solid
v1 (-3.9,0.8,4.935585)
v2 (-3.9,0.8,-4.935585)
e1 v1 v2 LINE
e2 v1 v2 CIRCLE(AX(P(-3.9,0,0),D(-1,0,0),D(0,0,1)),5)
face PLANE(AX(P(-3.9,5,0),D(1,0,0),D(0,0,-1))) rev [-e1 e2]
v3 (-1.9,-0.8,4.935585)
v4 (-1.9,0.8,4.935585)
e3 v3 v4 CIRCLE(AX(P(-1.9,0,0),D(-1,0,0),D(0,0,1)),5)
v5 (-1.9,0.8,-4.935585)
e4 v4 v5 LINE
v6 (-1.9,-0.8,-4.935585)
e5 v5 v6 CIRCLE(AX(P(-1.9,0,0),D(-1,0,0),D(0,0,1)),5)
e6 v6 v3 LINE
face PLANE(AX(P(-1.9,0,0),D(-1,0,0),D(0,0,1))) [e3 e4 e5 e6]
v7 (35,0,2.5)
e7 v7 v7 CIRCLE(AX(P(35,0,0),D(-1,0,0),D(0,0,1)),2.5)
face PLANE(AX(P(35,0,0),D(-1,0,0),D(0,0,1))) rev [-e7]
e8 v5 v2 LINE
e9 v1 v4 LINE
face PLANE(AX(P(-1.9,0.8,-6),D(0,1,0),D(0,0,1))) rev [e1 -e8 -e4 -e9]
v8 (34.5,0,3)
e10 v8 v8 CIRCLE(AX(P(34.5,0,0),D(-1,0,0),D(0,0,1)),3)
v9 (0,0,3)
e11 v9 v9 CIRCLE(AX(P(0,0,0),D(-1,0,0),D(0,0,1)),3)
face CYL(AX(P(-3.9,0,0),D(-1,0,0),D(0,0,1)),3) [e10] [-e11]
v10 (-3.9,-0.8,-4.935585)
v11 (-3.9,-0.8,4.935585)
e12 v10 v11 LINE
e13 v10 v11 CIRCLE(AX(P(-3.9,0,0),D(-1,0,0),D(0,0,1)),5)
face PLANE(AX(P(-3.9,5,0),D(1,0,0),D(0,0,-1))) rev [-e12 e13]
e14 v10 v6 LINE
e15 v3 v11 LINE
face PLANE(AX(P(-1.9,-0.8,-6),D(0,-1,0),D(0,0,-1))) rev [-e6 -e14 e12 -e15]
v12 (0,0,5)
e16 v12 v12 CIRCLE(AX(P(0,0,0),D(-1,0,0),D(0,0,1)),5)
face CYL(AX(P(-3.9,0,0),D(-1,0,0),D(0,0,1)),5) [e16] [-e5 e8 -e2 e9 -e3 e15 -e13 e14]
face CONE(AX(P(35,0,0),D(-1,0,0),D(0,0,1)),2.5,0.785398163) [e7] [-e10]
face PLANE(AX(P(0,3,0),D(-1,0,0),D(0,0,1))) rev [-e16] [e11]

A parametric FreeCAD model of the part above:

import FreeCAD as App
import Part
import Sketcher

V = App.Vector
Q = App.Units.Quantity


def add_polygon(sketch, points):
    """Adds a closed chain of lines whose ends are joined by coincident constraints."""
    first, n = sketch.GeometryCount, len(points)
    for a, b in zip(points, points[1:] + points[:1]):
        sketch.addGeometry(Part.LineSegment(App.Vector(*a, 0), App.Vector(*b, 0)), False)
    for i in range(n):
        sketch.addConstraint(Sketcher.Constraint("Coincident", first + i, 2, first + (i + 1) % n, 1))

doc = App.newDocument("Part")
body = doc.addObject("PartDesign::Body", "Body")

sketch1 = body.newObject("Sketcher::SketchObject", "Sketch")
sketch1.AttachmentSupport = (doc.getObject("XY_Plane"), [""])
sketch1.MapMode = "FlatFace"
add_polygon(sketch1, [(0, 3), (0, 5), (-3.9, 5), (-3.9, 0), (35, 0), (35, 2.5), (34.5, 3)])
sketch1.addConstraint([
    Sketcher.Constraint("Vertical", 0),
    Sketcher.Constraint("Horizontal", 1),
    Sketcher.Constraint("Vertical", 2),
    Sketcher.Constraint("Horizontal", 3),
    Sketcher.Constraint("Vertical", 4),
    Sketcher.Constraint("Horizontal", 6),
    Sketcher.Constraint("PointOnObject", 0, 2, -2),
    Sketcher.Constraint("PointOnObject", 2, 2, -1),
    Sketcher.Constraint("DistanceY", 0, 1, 0, 2, Q("2 mm")),
    Sketcher.Constraint("DistanceY", 2, 2, 2, 1, Q("5 mm")),
    Sketcher.Constraint("Angle", 5, Q("135 deg")),
    Sketcher.Constraint("DistanceX", 1, 2, 1, 1, Q("3.9 mm")),
    Sketcher.Constraint("DistanceX", 3, 1, 3, 2, Q("38.9 mm")),
    Sketcher.Constraint("DistanceX", 6, 2, 6, 1, Q("34.5 mm")),
])
revolution = body.newObject("PartDesign::Revolution", "Revolution")
revolution.Profile = sketch1
revolution.ReferenceAxis = (sketch1, ["H_Axis"])
revolution.Angle = 360

sketch2 = body.newObject("Sketcher::SketchObject", "Sketch001")
sketch2.AttachmentSupport = (doc.getObject("YZ_Plane"), [""])
sketch2.MapMode = "FlatFace"
sketch2.AttachmentOffset = App.Placement(V(0, 0, -3.9), App.Rotation())
add_polygon(sketch2, [(0.8, -6), (-0.8, -6), (-0.8, 6), (0.8, 6)])
sketch2.addConstraint([
    Sketcher.Constraint("Horizontal", 0),
    Sketcher.Constraint("Vertical", 1),
    Sketcher.Constraint("Horizontal", 2),
    Sketcher.Constraint("Vertical", 3),
    Sketcher.Constraint("Symmetric", 0, 2, 2, 2, -1, 1),
    Sketcher.Constraint("DistanceY", 1, 1, 1, 2, Q("12 mm")),
    Sketcher.Constraint("DistanceX", 0, 2, 0, 1, Q("1.6 mm")),
])
pocket1 = body.newObject("PartDesign::Pocket", "Pocket")
pocket1.Profile = sketch2
pocket1.Length = 2
pocket1.Reversed = True

doc.recompute()
